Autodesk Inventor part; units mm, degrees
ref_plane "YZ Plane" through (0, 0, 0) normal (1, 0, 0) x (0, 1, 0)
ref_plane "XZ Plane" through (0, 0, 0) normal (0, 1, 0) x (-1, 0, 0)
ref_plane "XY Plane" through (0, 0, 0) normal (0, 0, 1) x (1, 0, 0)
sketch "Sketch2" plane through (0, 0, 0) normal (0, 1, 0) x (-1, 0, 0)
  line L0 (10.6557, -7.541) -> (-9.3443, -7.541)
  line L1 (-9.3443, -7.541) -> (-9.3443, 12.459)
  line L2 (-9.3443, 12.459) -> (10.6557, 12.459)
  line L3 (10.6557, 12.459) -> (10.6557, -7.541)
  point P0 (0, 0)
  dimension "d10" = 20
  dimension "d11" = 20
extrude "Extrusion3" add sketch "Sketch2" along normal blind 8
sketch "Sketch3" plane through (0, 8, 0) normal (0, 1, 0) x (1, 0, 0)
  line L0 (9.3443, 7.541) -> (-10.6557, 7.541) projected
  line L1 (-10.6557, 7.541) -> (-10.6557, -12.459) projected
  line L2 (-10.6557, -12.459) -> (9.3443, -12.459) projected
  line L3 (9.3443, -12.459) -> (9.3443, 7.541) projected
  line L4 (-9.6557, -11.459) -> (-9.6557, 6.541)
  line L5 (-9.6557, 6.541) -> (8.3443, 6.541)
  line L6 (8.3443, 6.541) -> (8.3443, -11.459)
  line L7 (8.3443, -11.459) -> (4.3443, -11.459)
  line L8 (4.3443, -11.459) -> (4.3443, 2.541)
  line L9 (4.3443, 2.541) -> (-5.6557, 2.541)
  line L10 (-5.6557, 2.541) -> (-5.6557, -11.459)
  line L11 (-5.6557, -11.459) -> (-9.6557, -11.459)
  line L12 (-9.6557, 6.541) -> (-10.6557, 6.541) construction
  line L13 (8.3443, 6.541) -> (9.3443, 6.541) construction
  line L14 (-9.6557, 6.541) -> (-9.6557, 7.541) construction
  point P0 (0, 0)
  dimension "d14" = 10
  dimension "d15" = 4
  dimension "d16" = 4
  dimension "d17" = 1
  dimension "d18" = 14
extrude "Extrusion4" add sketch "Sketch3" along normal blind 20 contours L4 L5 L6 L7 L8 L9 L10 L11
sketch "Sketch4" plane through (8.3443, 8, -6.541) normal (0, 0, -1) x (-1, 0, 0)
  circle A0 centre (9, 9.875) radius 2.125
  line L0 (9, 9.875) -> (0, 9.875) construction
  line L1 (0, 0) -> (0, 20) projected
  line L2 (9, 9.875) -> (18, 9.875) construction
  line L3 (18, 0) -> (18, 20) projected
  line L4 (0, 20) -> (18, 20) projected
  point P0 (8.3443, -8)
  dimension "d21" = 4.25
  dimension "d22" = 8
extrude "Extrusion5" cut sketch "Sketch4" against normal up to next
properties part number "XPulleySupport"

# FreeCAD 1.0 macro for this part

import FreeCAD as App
import Part
import Sketcher
Q = App.Units.Quantity


def add_polygon(sketch, points):
    """Adds a closed chain of lines whose ends are joined by coincident constraints."""
    first, n = sketch.GeometryCount, len(points)
    for a, b in zip(points, points[1:] + points[:1]):
        sketch.addGeometry(Part.LineSegment(App.Vector(*a, 0), App.Vector(*b, 0)), False)
    for i in range(n):
        sketch.addConstraint(Sketcher.Constraint("Coincident", first + i, 2, first + (i + 1) % n, 1))

doc = App.newDocument("Part")
body = doc.addObject("PartDesign::Body", "Body")

# Sketch on XZ plane
sketch1 = doc.addObject("Sketcher::SketchObject", "Sketch")
body.addObject(sketch1)
sketch1.AttachmentSupport = (doc.XZ_Plane, [""])
sketch1.MapMode = "FlatFace"
add_polygon(sketch1, [(9.3443, -7.541), (-10.6557, -7.541), (-10.6557, 12.459), (9.3443, 12.459)])  # lines 0-3
sketch1.addConstraint([
    Sketcher.Constraint("Horizontal", 0),
    Sketcher.Constraint("Vertical", 1),
    Sketcher.Constraint("Horizontal", 2),
    Sketcher.Constraint("Vertical", 3),
    Sketcher.Constraint("Equal", 2, 1),
    Sketcher.Constraint("DistanceX", 0, 2, 0, 1, Q("20 mm")),
    Sketcher.Constraint("DistanceY", 0, 2, -1, 1, Q("7.541 mm")),
    Sketcher.Constraint("DistanceX", 0, 2, -1, 1, Q("10.6557 mm")),
])
pad1 = doc.addObject("PartDesign::Pad", "Pad")
body.addObject(pad1)
pad1.Profile = sketch1
pad1.Length = 8
pad1.Reversed = True

# Sketch on XZ plane
sketch2 = doc.addObject("Sketcher::SketchObject", "Sketch001")
body.addObject(sketch2)
sketch2.AttachmentSupport = (doc.XZ_Plane, [""])
sketch2.MapMode = "FlatFace"
sketch2.AttachmentOffset = App.Placement(App.Vector(0, 0, -8), App.Rotation())
add_polygon(sketch2, [(-9.6557, -6.541), (-9.6557, 11.459), (-5.6557, 11.459), (-5.6557, -2.541), (4.3443, -2.541), (4.3443, 11.459), (8.3443, 11.459), (8.3443, -6.541)])  # lines 0-7
sketch2.addConstraint([
    Sketcher.Constraint("Vertical", 0),
    Sketcher.Constraint("Horizontal", 1),
    Sketcher.Constraint("Vertical", 2),
    Sketcher.Constraint("Horizontal", 3),
    Sketcher.Constraint("Vertical", 4),
    Sketcher.Constraint("Horizontal", 5),
    Sketcher.Constraint("Vertical", 6),
    Sketcher.Constraint("Horizontal", 7),
    Sketcher.Constraint("Horizontal", 1, 2, 4, 2),
    Sketcher.Constraint("Equal", 1, 5),
    Sketcher.Constraint("Equal", 7, 0),
    Sketcher.Constraint("DistanceX", 1, 1, 1, 2, Q("4 mm")),
    Sketcher.Constraint("DistanceX", 3, 1, 3, 2, Q("10 mm")),
    Sketcher.Constraint("DistanceY", 2, 2, 2, 1, Q("14 mm")),
    Sketcher.Constraint("DistanceY", -1, 1, 0, 2, Q("11.459 mm")),
    Sketcher.Constraint("DistanceX", 0, 2, -1, 1, Q("9.6557 mm")),
])
pad2 = doc.addObject("PartDesign::Pad", "Pad001")
body.addObject(pad2)
pad2.Profile = sketch2
pad2.Length = 20
pad2.Reversed = True

# Sketch on XY plane
sketch3 = doc.addObject("Sketcher::SketchObject", "Sketch002")
body.addObject(sketch3)
sketch3.AttachmentSupport = (doc.XY_Plane, [""])
sketch3.MapMode = "FlatFace"
sketch3.AttachmentOffset = App.Placement(App.Vector(0, 0, -6.541), App.Rotation())
sketch3.addGeometry(Part.Circle(App.Vector(-0.6557, 17.875, 0), App.Vector(0, 0, 1), 2.125), False)
sketch3.addConstraint([
    Sketcher.Constraint("Diameter", 0, Q("4.25 mm")),
    Sketcher.Constraint("DistanceY", -1, 1, 0, 3, Q("17.875 mm")),
    Sketcher.Constraint("DistanceX", 0, 3, -1, 1, Q("0.6557 mm")),
])
pocket1 = doc.addObject("PartDesign::Pocket", "Pocket")
body.addObject(pocket1)
pocket1.Profile = sketch3
pocket1.Type = "UpToFirst"
pocket1.Reversed = True

doc.recompute()
